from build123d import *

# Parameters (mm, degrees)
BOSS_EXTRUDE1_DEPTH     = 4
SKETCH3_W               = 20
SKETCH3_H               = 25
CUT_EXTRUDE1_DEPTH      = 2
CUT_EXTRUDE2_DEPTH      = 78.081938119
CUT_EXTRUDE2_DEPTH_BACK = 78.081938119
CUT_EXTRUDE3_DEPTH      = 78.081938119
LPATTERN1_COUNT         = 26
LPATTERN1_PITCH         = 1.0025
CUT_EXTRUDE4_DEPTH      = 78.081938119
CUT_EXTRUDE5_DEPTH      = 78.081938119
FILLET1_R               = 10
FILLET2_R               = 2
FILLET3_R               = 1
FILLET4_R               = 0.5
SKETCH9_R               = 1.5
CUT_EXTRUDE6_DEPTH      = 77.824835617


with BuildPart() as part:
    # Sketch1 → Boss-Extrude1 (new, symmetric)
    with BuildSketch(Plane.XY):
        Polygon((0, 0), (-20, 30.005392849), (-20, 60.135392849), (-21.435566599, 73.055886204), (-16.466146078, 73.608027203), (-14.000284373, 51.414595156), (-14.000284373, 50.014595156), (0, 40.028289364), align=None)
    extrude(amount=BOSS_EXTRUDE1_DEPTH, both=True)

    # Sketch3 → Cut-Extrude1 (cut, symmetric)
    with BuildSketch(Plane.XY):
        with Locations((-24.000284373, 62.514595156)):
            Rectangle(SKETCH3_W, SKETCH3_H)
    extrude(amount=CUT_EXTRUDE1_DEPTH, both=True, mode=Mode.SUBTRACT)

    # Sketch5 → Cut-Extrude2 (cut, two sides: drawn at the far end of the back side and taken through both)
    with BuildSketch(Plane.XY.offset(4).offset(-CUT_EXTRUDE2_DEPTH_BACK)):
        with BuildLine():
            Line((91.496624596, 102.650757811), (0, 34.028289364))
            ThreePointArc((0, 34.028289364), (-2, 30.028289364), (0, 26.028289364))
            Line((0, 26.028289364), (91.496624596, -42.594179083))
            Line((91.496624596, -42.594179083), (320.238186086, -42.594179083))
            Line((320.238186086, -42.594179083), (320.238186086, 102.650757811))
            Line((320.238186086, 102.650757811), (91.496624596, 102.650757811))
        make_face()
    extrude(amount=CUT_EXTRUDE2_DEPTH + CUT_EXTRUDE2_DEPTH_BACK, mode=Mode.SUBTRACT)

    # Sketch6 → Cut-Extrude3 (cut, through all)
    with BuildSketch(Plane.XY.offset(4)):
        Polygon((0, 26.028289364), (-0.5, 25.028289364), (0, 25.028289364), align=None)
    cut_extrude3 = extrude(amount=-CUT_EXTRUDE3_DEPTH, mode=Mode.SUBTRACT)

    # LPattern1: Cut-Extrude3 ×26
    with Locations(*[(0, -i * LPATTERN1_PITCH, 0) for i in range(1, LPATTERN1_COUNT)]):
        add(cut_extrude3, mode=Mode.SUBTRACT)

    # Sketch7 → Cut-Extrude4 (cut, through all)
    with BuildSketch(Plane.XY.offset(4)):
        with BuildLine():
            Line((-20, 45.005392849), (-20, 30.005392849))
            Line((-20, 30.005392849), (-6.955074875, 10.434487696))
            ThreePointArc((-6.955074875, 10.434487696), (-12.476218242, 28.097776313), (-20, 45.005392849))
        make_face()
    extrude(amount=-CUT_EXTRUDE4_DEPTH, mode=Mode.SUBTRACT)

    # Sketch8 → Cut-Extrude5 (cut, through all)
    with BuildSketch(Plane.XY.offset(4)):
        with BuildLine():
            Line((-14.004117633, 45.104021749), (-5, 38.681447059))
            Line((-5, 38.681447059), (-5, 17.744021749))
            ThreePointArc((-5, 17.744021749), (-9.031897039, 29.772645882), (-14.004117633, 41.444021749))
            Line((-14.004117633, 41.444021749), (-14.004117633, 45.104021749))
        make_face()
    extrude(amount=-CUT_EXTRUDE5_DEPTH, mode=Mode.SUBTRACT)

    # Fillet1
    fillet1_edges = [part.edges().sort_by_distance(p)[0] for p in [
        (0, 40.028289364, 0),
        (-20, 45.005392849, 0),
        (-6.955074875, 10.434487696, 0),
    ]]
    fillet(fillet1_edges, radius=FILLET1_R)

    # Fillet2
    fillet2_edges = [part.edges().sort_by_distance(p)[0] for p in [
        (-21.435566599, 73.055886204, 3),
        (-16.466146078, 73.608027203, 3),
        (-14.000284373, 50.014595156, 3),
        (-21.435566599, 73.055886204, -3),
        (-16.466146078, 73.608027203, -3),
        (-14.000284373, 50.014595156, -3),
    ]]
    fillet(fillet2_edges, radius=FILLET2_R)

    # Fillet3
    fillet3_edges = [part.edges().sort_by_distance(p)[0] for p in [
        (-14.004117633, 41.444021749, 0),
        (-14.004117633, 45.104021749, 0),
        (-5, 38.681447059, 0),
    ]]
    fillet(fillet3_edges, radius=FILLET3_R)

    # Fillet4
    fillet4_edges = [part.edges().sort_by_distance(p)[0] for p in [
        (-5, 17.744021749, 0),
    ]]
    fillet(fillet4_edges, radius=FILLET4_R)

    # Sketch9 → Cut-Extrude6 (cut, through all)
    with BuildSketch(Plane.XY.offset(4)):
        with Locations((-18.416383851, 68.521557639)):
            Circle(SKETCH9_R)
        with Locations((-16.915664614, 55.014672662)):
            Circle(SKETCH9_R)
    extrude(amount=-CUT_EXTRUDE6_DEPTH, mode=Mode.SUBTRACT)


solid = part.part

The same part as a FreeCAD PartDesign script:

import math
import FreeCAD as App
import Part
import Sketcher
from FreeCAD import Vector
Q = App.Units.Quantity


def edges_at(feature, points):
    """Names of the edges that pass closest to the given points."""
    edges = feature.Shape.Edges
    near = lambda p: min(range(len(edges)), key=lambda i: edges[i].distToShape(Part.Vertex(*p))[0])
    return sorted({f"Edge{near(p) + 1}" for p in points})


def add_polygon(sketch, points):
    """Adds a closed chain of lines whose ends are joined by coincident constraints."""
    first, n = sketch.GeometryCount, len(points)
    for a, b in zip(points, points[1:] + points[:1]):
        sketch.addGeometry(Part.LineSegment(App.Vector(*a, 0), App.Vector(*b, 0)), False)
    for i in range(n):
        sketch.addConstraint(Sketcher.Constraint("Coincident", first + i, 2, first + (i + 1) % n, 1))

doc = App.newDocument("Part")
body = doc.addObject("PartDesign::Body", "Body")

sketch1 = body.newObject("Sketcher::SketchObject", "Sketch")
sketch1.AttachmentSupport = (doc.getObject("XY_Plane"), [""])
sketch1.MapMode = "FlatFace"
add_polygon(sketch1, [(-20, 30), (0, 0), (0, 40), (-14, 50), (-14, 51.4), (-16.5, 73.6), (-21.4, 73.1), (-20, 60.1)])
sketch1.addConstraint([
    Sketcher.Constraint("Vertical", 1),
    Sketcher.Constraint("Vertical", 3),
    Sketcher.Constraint("Vertical", 7),
    Sketcher.Constraint("Coincident", 0, 2, -1, 1),
    Sketcher.Constraint("Perpendicular", 4, 5),
    Sketcher.Constraint("Perpendicular", 5, 6),
    Sketcher.Constraint("Distance", 5, 5.0),
    Sketcher.Constraint("Distance", 6, 13.0),
    Sketcher.Constraint("DistanceY", 3, 1, 3, 2, 1.4),
    Sketcher.Constraint("DistanceX", 6, 2, -1, 1, 20.0),
    Sketcher.Constraint("Angle", 2, Q("144.5 deg")),
    Sketcher.Constraint("DistanceY", 7, 2, 7, 1, 30.13),
    Sketcher.Constraint("Angle", 4, Q("96.34 deg")),
    Sketcher.Constraint("Distance", 0, 36.06),
    Sketcher.Constraint("Distance", 4, 22.33),
])
pad1 = body.newObject("PartDesign::Pad", "Pad")
pad1.Profile = sketch1
pad1.Length = 8
pad1.Midplane = True

sketch2 = body.newObject("Sketcher::SketchObject", "Sketch001")
sketch2.AttachmentSupport = (doc.getObject("XY_Plane"), [""])
sketch2.MapMode = "FlatFace"
add_polygon(sketch2, [(-34, 75), (-34, 50), (-14, 50), (-14, 75)])
sketch2.addConstraint([
    Sketcher.Constraint("Vertical", 0),
    Sketcher.Constraint("Horizontal", 1),
    Sketcher.Constraint("Vertical", 2),
    Sketcher.Constraint("Horizontal", 3),
    Sketcher.Constraint("DistanceX", 1, 1, 1, 2, 20.0),
    Sketcher.Constraint("DistanceY", 0, 2, 0, 1, 25.0),
    Sketcher.Constraint("DistanceX", 0, 2, -1, 1, 34.000284),
    Sketcher.Constraint("DistanceY", -1, 1, 0, 2, 50.014595),
])
pocket1 = body.newObject("PartDesign::Pocket", "Pocket")
pocket1.Profile = sketch2
pocket1.Length = 4
pocket1.Midplane = True

sketch3 = body.newObject("Sketcher::SketchObject", "Sketch002")
sketch3.AttachmentSupport = (doc.getObject("XY_Plane"), [""])
sketch3.MapMode = "FlatFace"
sketch3.AttachmentOffset = App.Placement(Vector(0, 0, 4), App.Rotation())
sketch3.addGeometry([
    Part.LineSegment(Vector(91, 103, 0), Vector(0, 34, 0)),
    Part.ArcOfCircle(Part.Circle(Vector(3, 30, 0), Vector(0, 0, 1), 5), math.radians(127), math.radians(233)),
    Part.LineSegment(Vector(0, 26, 0), Vector(91, -43, 0)),
    Part.LineSegment(Vector(91, -43, 0), Vector(320, -43, 0)),
    Part.LineSegment(Vector(320, -43, 0), Vector(320, 103, 0)),
    Part.LineSegment(Vector(320, 103, 0), Vector(91, 103, 0)),
], False)
sketch3.addConstraint([
    Sketcher.Constraint("Tangent", 0, 2, 1, 1),
    Sketcher.Constraint("Tangent", 1, 2, 2, 1),
    Sketcher.Constraint("Coincident", 2, 2, 3, 1),
    Sketcher.Constraint("Coincident", 3, 2, 4, 1),
    Sketcher.Constraint("Coincident", 4, 2, 5, 1),
    Sketcher.Constraint("Coincident", 5, 2, 0, 1),
    Sketcher.Constraint("Horizontal", 3),
    Sketcher.Constraint("Vertical", 4),
    Sketcher.Constraint("Horizontal", 5),
    Sketcher.Constraint("PointOnObject", 0, 2, -2),
    Sketcher.Constraint("PointOnObject", 1, 2, -2),
    Sketcher.Constraint("Vertical", 2, 2, 5, 2),
    Sketcher.Constraint("Radius", 1, 5.0),
    Sketcher.Constraint("DistanceX", -1, 1, 1, 3, 3.0),
    Sketcher.Constraint("DistanceX", 3, 1, 3, 2, 228.741561),
    Sketcher.Constraint("Distance", 0, 114.370781),
    Sketcher.Constraint("DistanceY", -1, 1, 1, 3, 30.028289),
])
pocket2 = body.newObject("PartDesign::Pocket", "Pocket001")
pocket2.Profile = sketch3
pocket2.Type = "ThroughAll"
pocket2.Midplane = True

sketch4 = body.newObject("Sketcher::SketchObject", "Sketch003")
sketch4.AttachmentSupport = (doc.getObject("XY_Plane"), [""])
sketch4.MapMode = "FlatFace"
sketch4.AttachmentOffset = App.Placement(Vector(0, 0, 4), App.Rotation())
add_polygon(sketch4, [(0, 26), (-0.5, 25), (0, 25)])
sketch4.addConstraint([
    Sketcher.Constraint("Horizontal", 1),
    Sketcher.Constraint("Vertical", 2),
    Sketcher.Constraint("PointOnObject", 1, 2, -2),
    Sketcher.Constraint("DistanceY", 2, 1, 2, 2, 1.0),
    Sketcher.Constraint("DistanceX", 1, 1, 1, 2, 0.5),
    Sketcher.Constraint("DistanceY", -1, 1, 0, 2, 25.028289),
])
pocket3 = body.newObject("PartDesign::Pocket", "Pocket002")
pocket3.Profile = sketch4
pocket3.Type = "ThroughAll"
doc.recompute()

linearpattern = body.newObject("PartDesign::LinearPattern", "LinearPattern")
linearpattern.Originals = [pocket3]
linearpattern.Direction = (doc.getObject("Y_Axis"), [""])
linearpattern.Mode = "offset"
linearpattern.Offset = 1.0025
linearpattern.Occurrences = 26
linearpattern.Reversed = True
body.Tip = linearpattern

sketch5 = body.newObject("Sketcher::SketchObject", "Sketch004")
sketch5.AttachmentSupport = (doc.getObject("XY_Plane"), [""])
sketch5.MapMode = "FlatFace"
sketch5.AttachmentOffset = App.Placement(Vector(0, 0, 4), App.Rotation())
sketch5.addGeometry([
    Part.LineSegment(Vector(-20, 45, 0), Vector(-20, 30, 0)),
    Part.LineSegment(Vector(-20, 30, 0), Vector(-7, 10, 0)),
    Part.ArcOfCircle(Part.Circle(Vector(-162, -28, 0), Vector(0, 0, 1), 160), math.radians(14.04), math.radians(27.3)),
], False)
sketch5.addConstraint([
    Sketcher.Constraint("Coincident", 0, 2, 1, 1),
    Sketcher.Constraint("Coincident", 1, 2, 2, 1),
    Sketcher.Constraint("Coincident", 2, 2, 0, 1),
    Sketcher.Constraint("Vertical", 0),
    Sketcher.Constraint("Radius", 2, 160.0),
    Sketcher.Constraint("DistanceY", 0, 2, 0, 1, 15.0),
    Sketcher.Constraint("DistanceX", 0, 2, -1, 1, 20.0),
    Sketcher.Constraint("Distance", 1, 23.52),
    Sketcher.Constraint("DistanceX", 2, 3, 1, 2, 155.218419),
    Sketcher.Constraint("DistanceY", 2, 3, -1, 1, 28.388733),
])
pocket4 = body.newObject("PartDesign::Pocket", "Pocket003")
pocket4.Profile = sketch5
pocket4.Type = "ThroughAll"

sketch6 = body.newObject("Sketcher::SketchObject", "Sketch005")
sketch6.AttachmentSupport = (doc.getObject("XY_Plane"), [""])
sketch6.MapMode = "FlatFace"
sketch6.AttachmentOffset = App.Placement(Vector(0, 0, 4), App.Rotation())
sketch6.addGeometry([
    Part.LineSegment(Vector(-5, 38.7, 0), Vector(-14, 45.1, 0)),
    Part.LineSegment(Vector(-14, 45.1, 0), Vector(-14, 41.4, 0)),
    Part.ArcOfCircle(Part.Circle(Vector(-158.6, -27.1, 0), Vector(0, 0, 1), 160), math.radians(16.26), math.radians(25.35)),
    Part.LineSegment(Vector(-5, 17.7, 0), Vector(-5, 38.7, 0)),
], False)
sketch6.addConstraint([
    Sketcher.Constraint("Coincident", 0, 2, 1, 1),
    Sketcher.Constraint("Coincident", 1, 2, 2, 2),
    Sketcher.Constraint("Coincident", 2, 1, 3, 1),
    Sketcher.Constraint("Coincident", 3, 2, 0, 1),
    Sketcher.Constraint("Vertical", 1),
    Sketcher.Constraint("Vertical", 3),
    Sketcher.Constraint("Radius", 2, 160.0),
    Sketcher.Constraint("DistanceX", 2, 1, -1, 1, 5.0),
    Sketcher.Constraint("Angle", 0, Q("144.5 deg")),
    Sketcher.Constraint("DistanceY", 1, 2, 1, 1, 3.66),
    Sketcher.Constraint("DistanceY", 2, 1, 1, 2, 23.7),
    Sketcher.Constraint("Distance", 0, 11.06),
    Sketcher.Constraint("DistanceY", -1, 1, 0, 2, 45.104022),
])
pocket5 = body.newObject("PartDesign::Pocket", "Pocket004")
pocket5.Profile = sketch6
pocket5.Type = "ThroughAll"
doc.recompute()

fillet = body.newObject("PartDesign::Fillet", "Fillet")
fillet.Base = (pocket5, edges_at(pocket5, [(0, 40.028, 0), (-20, 45.005, 0), (-6.955, 10.434, 0)]))
fillet.Radius = 10
doc.recompute()

fillet2 = body.newObject("PartDesign::Fillet", "Fillet001")
fillet2.Base = (fillet, edges_at(fillet, [
    (-21.436, 73.056, 3),
    (-16.466, 73.608, 3),
    (-14, 50.015, 3),
    (-21.436, 73.056, -3),
    (-16.466, 73.608, -3),
    (-14, 50.015, -3),
]))
fillet2.Radius = 2
doc.recompute()

fillet3 = body.newObject("PartDesign::Fillet", "Fillet002")
fillet3.Base = (fillet2, edges_at(fillet2, [(-14.004, 41.444, 0), (-14.004, 45.104, 0), (-5, 38.681, 0)]))
fillet3.Radius = 1
doc.recompute()

fillet4 = body.newObject("PartDesign::Fillet", "Fillet003")
fillet4.Base = (fillet3, edges_at(fillet3, [(-5, 17.744, 0)]))
fillet4.Radius = 0.5

sketch7 = body.newObject("Sketcher::SketchObject", "Sketch006")
sketch7.AttachmentSupport = (doc.getObject("XY_Plane"), [""])
sketch7.MapMode = "FlatFace"
sketch7.AttachmentOffset = App.Placement(Vector(0, 0, 4), App.Rotation())
sketch7.addGeometry([
    Part.Circle(Vector(-18.4, 68.5, 0), Vector(0, 0, 1), 1.5),
    Part.Circle(Vector(-16.9, 55, 0), Vector(0, 0, 1), 1.5),
], False)
sketch7.addConstraint([
    Sketcher.Constraint("Equal", 0, 1),
    Sketcher.Constraint("Diameter", 0, 3.0),
    Sketcher.Constraint("DistanceX", 0, 3, 1, 3, 1.500719),
    Sketcher.Constraint("DistanceX", 0, 3, -1, 1, 18.416384),
    Sketcher.Constraint("DistanceY", -1, 1, 0, 3, 68.521558),
    Sketcher.Constraint("DistanceY", -1, 1, 1, 3, 55.014673),
])
pocket6 = body.newObject("PartDesign::Pocket", "Pocket005")
pocket6.Profile = sketch7
pocket6.Type = "ThroughAll"

doc.recompute()
